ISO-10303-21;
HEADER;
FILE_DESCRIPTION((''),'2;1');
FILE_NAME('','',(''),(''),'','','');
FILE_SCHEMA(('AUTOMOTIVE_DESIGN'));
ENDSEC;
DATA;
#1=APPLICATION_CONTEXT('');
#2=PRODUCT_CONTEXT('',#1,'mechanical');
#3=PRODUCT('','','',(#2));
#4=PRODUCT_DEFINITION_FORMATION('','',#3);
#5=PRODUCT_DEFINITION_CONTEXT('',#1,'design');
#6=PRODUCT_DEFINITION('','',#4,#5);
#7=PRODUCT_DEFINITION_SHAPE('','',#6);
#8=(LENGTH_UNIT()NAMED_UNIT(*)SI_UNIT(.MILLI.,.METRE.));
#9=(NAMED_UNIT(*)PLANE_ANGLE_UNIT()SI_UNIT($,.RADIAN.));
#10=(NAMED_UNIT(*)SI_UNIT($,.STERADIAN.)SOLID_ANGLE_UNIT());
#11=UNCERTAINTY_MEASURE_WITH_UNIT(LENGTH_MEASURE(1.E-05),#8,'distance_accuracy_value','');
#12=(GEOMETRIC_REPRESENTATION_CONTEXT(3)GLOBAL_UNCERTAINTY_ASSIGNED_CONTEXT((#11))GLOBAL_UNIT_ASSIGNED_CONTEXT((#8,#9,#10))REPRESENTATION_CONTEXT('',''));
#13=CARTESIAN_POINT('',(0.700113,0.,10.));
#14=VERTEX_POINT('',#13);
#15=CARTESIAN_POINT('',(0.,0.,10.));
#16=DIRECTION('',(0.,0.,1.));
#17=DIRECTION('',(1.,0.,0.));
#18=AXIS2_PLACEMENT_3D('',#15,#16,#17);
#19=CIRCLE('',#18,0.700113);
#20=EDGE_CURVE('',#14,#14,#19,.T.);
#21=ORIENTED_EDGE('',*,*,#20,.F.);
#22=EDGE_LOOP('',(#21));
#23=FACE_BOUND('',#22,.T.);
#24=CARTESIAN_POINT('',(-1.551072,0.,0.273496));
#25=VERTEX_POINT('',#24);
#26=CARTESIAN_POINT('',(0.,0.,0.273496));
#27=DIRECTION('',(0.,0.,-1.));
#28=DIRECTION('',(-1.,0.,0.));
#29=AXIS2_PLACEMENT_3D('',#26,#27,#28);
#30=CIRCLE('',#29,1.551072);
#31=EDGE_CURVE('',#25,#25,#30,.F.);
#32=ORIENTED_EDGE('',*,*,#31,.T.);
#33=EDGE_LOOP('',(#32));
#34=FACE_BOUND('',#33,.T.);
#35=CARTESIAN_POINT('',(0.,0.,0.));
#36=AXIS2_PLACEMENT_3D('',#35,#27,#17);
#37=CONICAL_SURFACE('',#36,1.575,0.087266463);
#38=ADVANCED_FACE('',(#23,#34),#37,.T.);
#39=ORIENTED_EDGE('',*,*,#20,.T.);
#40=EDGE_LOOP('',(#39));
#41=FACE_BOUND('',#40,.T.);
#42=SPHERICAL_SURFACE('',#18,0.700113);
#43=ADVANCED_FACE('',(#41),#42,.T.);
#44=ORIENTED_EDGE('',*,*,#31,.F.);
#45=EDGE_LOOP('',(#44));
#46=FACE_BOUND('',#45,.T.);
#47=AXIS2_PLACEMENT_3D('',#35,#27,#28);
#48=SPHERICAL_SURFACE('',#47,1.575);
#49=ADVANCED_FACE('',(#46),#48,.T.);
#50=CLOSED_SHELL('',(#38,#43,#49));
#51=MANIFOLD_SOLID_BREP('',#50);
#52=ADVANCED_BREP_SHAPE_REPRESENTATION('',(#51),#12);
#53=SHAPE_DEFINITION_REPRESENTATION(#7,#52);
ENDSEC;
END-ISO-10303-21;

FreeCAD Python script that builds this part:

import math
import FreeCAD as App
import Part
import Sketcher

V = App.Vector
Q = App.Units.Quantity

doc = App.newDocument("Part")
body = doc.addObject("PartDesign::Body", "Body")

# Sketch on XY plane
sketch1 = body.newObject("Sketcher::SketchObject", "Sketch")
sketch1.AttachmentSupport = (doc.getObject("XY_Plane"), [""])
sketch1.MapMode = "FlatFace"
sketch1.addGeometry([
    Part.LineSegment(V(0, 1.6, 0), V(0, -1.6, 0)),
    Part.ArcOfCircle(Part.Circle(V(0, 0, 0), V(0, 0, 1), 1.6), math.radians(-90), math.radians(90)),
], False)
sketch1.addConstraint([
    Sketcher.Constraint("Coincident", 0, 1, 1, 2),
    Sketcher.Constraint("Coincident", 1, 1, 0, 2),
    Sketcher.Constraint("Vertical", 0),
    Sketcher.Constraint("Coincident", 1, 3, -1, 1),
    Sketcher.Constraint("PointOnObject", 0, 1, -2),
    Sketcher.Constraint("Radius", 1, Q("1.575 mm")),
])
revolution = body.newObject("PartDesign::Revolution", "Revolution")
revolution.Profile = sketch1
revolution.ReferenceAxis = (sketch1, ["V_Axis"])
revolution.Angle = 360

# Sketch on XY plane
sketch2 = body.newObject("Sketcher::SketchObject", "Sketch001")
sketch2.AttachmentSupport = (doc.getObject("XY_Plane"), [""])
sketch2.MapMode = "FlatFace"
sketch2.addGeometry(Part.Circle(V(0, 0, 0), V(0, 0, 1), 1.6), False)
sketch2.addConstraint([
    Sketcher.Constraint("Coincident", 0, 3, -1, 1),
    Sketcher.Constraint("Diameter", 0, Q("3.15 mm")),
])
pad1 = body.newObject("PartDesign::Pad", "Pad")
pad1.Profile = sketch2
pad1.Length = 10
pad1.TaperAngle = -5

# Sketch on XY plane
sketch3 = body.newObject("Sketcher::SketchObject", "Sketch002")
sketch3.AttachmentSupport = (doc.getObject("XY_Plane"), [""])
sketch3.MapMode = "FlatFace"
sketch3.AttachmentOffset = App.Placement(V(0, 0, 10), App.Rotation())
sketch3.addGeometry([
    Part.LineSegment(V(0, 0.7, 0), V(0, -0.7, 0)),
    Part.ArcOfCircle(Part.Circle(V(0, 0, 0), V(0, 0, 1), 0.7), math.radians(-90), math.radians(90)),
], False)
sketch3.addConstraint([
    Sketcher.Constraint("Coincident", 0, 1, 1, 2),
    Sketcher.Constraint("Coincident", 1, 1, 0, 2),
    Sketcher.Constraint("Vertical", 0),
    Sketcher.Constraint("Coincident", 1, 3, -1, 1),
    Sketcher.Constraint("PointOnObject", 0, 1, -2),
    Sketcher.Constraint("Radius", 1, Q("0.700113 mm")),
])
revolution2 = body.newObject("PartDesign::Revolution", "Revolution001")
revolution2.Profile = sketch3
revolution2.ReferenceAxis = (sketch3, ["V_Axis"])
revolution2.Angle = 360

doc.recompute()
